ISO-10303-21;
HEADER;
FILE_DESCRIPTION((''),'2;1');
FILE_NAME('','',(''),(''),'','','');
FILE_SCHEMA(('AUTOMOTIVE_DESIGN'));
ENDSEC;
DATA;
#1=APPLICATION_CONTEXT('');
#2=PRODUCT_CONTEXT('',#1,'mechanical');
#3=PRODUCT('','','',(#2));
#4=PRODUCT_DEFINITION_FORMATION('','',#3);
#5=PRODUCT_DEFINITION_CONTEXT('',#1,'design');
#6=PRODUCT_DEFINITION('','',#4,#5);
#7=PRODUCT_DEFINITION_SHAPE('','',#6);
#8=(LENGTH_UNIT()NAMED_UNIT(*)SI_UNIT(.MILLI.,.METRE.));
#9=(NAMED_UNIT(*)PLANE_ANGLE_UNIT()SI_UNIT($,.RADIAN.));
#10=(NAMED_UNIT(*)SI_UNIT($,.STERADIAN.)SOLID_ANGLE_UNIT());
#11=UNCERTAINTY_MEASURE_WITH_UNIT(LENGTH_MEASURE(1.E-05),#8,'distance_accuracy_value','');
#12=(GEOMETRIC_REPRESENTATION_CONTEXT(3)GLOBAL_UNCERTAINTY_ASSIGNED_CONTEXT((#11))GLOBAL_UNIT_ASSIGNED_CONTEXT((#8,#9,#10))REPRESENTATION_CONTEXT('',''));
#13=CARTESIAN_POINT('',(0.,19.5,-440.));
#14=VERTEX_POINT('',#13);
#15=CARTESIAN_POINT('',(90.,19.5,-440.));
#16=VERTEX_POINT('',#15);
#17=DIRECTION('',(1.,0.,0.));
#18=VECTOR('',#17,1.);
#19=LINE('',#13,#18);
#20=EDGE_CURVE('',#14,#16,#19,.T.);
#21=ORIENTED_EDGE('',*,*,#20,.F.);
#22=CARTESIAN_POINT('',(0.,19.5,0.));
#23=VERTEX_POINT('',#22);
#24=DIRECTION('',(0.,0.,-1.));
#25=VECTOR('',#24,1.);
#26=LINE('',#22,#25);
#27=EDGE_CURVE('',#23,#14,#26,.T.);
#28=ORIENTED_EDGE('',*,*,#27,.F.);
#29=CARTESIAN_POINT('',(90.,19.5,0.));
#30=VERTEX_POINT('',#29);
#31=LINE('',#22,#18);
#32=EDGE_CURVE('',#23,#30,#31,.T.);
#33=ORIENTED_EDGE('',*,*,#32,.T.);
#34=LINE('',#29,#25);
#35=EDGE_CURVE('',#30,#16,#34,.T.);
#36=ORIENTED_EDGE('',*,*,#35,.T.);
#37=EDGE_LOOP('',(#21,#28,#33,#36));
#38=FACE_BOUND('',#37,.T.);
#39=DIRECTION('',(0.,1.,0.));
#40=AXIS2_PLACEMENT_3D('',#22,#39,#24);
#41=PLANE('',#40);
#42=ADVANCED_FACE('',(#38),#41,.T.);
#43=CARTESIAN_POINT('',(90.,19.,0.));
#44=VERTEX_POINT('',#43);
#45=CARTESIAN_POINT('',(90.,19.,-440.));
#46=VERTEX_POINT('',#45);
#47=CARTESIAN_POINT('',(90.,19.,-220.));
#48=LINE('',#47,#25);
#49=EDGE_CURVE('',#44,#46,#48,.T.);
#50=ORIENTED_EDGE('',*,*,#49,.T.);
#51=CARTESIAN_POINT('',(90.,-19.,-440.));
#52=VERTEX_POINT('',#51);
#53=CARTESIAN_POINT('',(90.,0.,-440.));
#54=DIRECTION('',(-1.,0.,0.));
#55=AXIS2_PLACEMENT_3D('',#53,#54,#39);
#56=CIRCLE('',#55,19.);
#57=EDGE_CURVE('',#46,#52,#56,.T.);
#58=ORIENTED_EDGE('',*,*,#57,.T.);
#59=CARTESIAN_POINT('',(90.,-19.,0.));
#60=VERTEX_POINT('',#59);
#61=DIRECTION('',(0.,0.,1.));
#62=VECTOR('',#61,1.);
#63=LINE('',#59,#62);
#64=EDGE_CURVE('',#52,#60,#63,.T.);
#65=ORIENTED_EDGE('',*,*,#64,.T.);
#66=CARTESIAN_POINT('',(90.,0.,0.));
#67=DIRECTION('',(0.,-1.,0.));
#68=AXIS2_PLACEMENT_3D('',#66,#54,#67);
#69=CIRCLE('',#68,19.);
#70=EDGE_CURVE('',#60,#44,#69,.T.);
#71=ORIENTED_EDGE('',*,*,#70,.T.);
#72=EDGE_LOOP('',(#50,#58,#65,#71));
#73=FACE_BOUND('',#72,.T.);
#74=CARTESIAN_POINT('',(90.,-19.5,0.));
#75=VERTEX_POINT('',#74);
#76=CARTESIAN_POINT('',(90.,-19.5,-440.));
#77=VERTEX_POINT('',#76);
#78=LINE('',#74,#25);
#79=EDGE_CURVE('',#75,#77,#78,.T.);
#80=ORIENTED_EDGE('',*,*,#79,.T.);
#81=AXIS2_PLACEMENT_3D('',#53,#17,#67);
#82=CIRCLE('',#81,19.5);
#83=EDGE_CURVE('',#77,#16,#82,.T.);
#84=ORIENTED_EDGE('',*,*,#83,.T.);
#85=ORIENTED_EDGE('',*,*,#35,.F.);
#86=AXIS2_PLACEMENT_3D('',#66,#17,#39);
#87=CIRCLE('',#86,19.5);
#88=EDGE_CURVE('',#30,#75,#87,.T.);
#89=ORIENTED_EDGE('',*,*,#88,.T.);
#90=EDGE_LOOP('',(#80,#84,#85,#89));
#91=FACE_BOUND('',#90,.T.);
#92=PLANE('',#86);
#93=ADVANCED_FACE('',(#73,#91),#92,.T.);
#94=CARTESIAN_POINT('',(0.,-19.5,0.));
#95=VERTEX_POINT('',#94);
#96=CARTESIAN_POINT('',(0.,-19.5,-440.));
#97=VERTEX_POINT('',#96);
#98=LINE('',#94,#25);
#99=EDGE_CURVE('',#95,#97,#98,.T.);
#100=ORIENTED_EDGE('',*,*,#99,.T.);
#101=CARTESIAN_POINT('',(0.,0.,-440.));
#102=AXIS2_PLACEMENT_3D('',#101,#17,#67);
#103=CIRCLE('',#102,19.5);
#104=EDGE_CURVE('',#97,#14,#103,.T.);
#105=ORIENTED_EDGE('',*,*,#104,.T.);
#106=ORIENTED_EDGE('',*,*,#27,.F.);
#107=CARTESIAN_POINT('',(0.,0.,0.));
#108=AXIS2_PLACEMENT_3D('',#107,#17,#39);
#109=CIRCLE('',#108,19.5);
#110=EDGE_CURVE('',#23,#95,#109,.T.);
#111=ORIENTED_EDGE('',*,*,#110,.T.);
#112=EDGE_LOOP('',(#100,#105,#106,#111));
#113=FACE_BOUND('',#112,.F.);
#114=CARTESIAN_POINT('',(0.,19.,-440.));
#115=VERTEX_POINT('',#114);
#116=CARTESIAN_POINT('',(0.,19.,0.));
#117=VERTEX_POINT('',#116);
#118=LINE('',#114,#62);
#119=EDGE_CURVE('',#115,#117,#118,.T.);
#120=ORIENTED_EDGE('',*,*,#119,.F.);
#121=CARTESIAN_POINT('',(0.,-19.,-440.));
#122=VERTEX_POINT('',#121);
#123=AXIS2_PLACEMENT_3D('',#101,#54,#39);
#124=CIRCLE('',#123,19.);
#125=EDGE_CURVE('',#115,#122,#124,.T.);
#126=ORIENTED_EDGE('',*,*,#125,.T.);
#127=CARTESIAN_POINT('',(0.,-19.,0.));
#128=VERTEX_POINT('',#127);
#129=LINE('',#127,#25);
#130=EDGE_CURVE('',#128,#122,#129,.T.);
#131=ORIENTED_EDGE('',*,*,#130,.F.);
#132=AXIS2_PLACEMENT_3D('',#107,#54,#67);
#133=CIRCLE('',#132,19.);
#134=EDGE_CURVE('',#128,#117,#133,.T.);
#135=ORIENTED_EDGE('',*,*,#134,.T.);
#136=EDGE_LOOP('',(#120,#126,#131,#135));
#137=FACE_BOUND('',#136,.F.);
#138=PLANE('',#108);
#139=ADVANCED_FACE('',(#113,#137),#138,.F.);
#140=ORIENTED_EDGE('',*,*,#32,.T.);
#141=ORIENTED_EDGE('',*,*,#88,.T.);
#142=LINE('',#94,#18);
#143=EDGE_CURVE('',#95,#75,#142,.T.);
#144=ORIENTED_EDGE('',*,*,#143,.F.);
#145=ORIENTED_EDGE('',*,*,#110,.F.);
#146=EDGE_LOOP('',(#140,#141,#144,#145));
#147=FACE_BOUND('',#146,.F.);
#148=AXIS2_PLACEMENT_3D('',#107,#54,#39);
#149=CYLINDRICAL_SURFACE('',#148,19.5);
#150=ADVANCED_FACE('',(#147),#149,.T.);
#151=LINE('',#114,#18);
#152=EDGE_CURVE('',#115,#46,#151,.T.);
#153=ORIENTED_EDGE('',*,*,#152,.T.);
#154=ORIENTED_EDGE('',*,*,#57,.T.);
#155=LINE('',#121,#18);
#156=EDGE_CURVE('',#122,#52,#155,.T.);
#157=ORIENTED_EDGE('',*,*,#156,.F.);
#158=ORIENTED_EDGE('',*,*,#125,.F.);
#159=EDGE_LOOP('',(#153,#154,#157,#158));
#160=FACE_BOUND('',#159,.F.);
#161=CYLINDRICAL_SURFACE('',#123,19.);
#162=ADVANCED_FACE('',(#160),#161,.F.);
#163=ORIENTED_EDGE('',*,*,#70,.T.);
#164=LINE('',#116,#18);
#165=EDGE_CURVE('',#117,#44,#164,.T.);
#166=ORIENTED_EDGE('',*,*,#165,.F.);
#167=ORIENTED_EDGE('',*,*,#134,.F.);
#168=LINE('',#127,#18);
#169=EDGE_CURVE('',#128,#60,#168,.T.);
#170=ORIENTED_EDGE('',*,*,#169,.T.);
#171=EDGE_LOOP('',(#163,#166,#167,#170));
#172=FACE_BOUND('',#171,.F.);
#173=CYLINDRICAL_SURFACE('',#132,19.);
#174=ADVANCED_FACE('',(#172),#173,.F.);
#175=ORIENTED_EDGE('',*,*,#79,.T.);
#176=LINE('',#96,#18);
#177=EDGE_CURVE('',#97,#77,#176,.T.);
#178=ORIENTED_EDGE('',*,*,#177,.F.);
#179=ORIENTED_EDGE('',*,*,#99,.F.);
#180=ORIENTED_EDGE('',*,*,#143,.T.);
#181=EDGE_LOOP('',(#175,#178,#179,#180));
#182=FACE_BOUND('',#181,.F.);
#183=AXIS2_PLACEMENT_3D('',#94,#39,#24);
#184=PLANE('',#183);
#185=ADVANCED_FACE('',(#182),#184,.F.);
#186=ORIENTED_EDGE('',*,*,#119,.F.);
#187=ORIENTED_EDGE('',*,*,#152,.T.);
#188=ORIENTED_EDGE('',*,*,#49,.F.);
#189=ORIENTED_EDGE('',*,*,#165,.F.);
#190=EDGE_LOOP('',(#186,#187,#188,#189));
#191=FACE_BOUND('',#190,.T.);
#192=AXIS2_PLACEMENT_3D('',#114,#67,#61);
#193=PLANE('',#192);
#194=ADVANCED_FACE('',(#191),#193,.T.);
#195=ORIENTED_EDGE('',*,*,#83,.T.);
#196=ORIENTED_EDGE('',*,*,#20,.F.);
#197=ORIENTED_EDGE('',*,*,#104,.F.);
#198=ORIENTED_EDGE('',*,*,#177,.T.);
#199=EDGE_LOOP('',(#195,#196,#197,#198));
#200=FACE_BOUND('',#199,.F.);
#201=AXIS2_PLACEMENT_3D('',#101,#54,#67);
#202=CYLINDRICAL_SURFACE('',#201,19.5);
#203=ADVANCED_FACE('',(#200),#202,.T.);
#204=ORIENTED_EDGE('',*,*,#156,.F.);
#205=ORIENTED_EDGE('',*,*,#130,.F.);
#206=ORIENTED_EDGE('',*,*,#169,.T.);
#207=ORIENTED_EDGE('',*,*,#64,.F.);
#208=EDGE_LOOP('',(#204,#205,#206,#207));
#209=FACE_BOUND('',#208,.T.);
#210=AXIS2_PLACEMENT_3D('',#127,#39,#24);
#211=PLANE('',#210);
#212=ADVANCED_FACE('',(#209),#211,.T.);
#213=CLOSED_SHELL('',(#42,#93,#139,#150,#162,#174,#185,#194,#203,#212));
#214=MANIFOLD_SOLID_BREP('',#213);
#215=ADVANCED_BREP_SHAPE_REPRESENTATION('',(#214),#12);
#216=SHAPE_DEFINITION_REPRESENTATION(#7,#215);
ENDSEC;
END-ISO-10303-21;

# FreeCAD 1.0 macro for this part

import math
import FreeCAD as App
import Part
import Sketcher
from FreeCAD import Vector

doc = App.newDocument("Part")
body = doc.addObject("PartDesign::Body", "Body")

sketch1 = body.newObject("Sketcher::SketchObject", "Sketch")
sketch1.AttachmentSupport = (doc.getObject("YZ_Plane"), [""])
sketch1.MapMode = "FlatFace"
sketch1.addGeometry(Part.LineSegment(Vector(20, -440, 0), Vector(20, 0, 0)), False)
sketch1.addGeometry(Part.ArcOfCircle(Part.Circle(Vector(0, 0, 0), Vector(0, 0, 1), 20), math.radians(0), math.radians(180)), False)
sketch1.addGeometry(Part.LineSegment(Vector(-20, 0, 0), Vector(-20, -440, 0)), False)
sketch1.addGeometry(Part.ArcOfCircle(Part.Circle(Vector(0, -440, 0), Vector(0, 0, 1), 20), math.radians(180), math.radians(360)), False)
sketch1.addConstraint(Sketcher.Constraint("Tangent", 0, 2, 1, 1))
sketch1.addConstraint(Sketcher.Constraint("Tangent", 1, 2, 2, 1))
sketch1.addConstraint(Sketcher.Constraint("Tangent", 2, 2, 3, 1))
sketch1.addConstraint(Sketcher.Constraint("Tangent", 3, 2, 0, 1))
sketch1.addConstraint(Sketcher.Constraint("Vertical", 0))
sketch1.addConstraint(Sketcher.Constraint("Vertical", 2))
sketch1.addConstraint(Sketcher.Constraint("Coincident", 1, 3, -1, 1))
sketch1.addConstraint(Sketcher.Constraint("Radius", 1, 19.5))
sketch1.addConstraint(Sketcher.Constraint("DistanceY", 0, 1, 0, 2, 440.0))
pad1 = body.newObject("PartDesign::Pad", "Pad")
pad1.Profile = sketch1
pad1.Length = 90

sketch2 = body.newObject("Sketcher::SketchObject", "Sketch001")
sketch2.AttachmentSupport = (doc.getObject("YZ_Plane"), [""])
sketch2.MapMode = "FlatFace"
sketch2.addGeometry(Part.LineSegment(Vector(-19, -440, 0), Vector(-19, 0, 0)), False)
sketch2.addGeometry(Part.ArcOfCircle(Part.Circle(Vector(0, 0, 0), Vector(0, 0, 1), 19), math.radians(0), math.radians(180)), False)
sketch2.addGeometry(Part.LineSegment(Vector(19, 0, 0), Vector(19, -440, 0)), False)
sketch2.addGeometry(Part.ArcOfCircle(Part.Circle(Vector(0, -440, 0), Vector(0, 0, 1), 19), math.radians(180), math.radians(360)), False)
sketch2.addConstraint(Sketcher.Constraint("Tangent", 0, 2, 1, 2))
sketch2.addConstraint(Sketcher.Constraint("Tangent", 1, 1, 2, 1))
sketch2.addConstraint(Sketcher.Constraint("Tangent", 2, 2, 3, 2))
sketch2.addConstraint(Sketcher.Constraint("Tangent", 3, 1, 0, 1))
sketch2.addConstraint(Sketcher.Constraint("Vertical", 0))
sketch2.addConstraint(Sketcher.Constraint("Vertical", 2))
sketch2.addConstraint(Sketcher.Constraint("Coincident", 1, 3, -1, 1))
sketch2.addConstraint(Sketcher.Constraint("Radius", 1, 19.0))
sketch2.addConstraint(Sketcher.Constraint("DistanceY", 0, 1, 0, 2, 440.0))
pocket1 = body.newObject("PartDesign::Pocket", "Pocket")
pocket1.Profile = sketch2
pocket1.Type = "ThroughAll"
pocket1.Reversed = True

doc.recompute()
